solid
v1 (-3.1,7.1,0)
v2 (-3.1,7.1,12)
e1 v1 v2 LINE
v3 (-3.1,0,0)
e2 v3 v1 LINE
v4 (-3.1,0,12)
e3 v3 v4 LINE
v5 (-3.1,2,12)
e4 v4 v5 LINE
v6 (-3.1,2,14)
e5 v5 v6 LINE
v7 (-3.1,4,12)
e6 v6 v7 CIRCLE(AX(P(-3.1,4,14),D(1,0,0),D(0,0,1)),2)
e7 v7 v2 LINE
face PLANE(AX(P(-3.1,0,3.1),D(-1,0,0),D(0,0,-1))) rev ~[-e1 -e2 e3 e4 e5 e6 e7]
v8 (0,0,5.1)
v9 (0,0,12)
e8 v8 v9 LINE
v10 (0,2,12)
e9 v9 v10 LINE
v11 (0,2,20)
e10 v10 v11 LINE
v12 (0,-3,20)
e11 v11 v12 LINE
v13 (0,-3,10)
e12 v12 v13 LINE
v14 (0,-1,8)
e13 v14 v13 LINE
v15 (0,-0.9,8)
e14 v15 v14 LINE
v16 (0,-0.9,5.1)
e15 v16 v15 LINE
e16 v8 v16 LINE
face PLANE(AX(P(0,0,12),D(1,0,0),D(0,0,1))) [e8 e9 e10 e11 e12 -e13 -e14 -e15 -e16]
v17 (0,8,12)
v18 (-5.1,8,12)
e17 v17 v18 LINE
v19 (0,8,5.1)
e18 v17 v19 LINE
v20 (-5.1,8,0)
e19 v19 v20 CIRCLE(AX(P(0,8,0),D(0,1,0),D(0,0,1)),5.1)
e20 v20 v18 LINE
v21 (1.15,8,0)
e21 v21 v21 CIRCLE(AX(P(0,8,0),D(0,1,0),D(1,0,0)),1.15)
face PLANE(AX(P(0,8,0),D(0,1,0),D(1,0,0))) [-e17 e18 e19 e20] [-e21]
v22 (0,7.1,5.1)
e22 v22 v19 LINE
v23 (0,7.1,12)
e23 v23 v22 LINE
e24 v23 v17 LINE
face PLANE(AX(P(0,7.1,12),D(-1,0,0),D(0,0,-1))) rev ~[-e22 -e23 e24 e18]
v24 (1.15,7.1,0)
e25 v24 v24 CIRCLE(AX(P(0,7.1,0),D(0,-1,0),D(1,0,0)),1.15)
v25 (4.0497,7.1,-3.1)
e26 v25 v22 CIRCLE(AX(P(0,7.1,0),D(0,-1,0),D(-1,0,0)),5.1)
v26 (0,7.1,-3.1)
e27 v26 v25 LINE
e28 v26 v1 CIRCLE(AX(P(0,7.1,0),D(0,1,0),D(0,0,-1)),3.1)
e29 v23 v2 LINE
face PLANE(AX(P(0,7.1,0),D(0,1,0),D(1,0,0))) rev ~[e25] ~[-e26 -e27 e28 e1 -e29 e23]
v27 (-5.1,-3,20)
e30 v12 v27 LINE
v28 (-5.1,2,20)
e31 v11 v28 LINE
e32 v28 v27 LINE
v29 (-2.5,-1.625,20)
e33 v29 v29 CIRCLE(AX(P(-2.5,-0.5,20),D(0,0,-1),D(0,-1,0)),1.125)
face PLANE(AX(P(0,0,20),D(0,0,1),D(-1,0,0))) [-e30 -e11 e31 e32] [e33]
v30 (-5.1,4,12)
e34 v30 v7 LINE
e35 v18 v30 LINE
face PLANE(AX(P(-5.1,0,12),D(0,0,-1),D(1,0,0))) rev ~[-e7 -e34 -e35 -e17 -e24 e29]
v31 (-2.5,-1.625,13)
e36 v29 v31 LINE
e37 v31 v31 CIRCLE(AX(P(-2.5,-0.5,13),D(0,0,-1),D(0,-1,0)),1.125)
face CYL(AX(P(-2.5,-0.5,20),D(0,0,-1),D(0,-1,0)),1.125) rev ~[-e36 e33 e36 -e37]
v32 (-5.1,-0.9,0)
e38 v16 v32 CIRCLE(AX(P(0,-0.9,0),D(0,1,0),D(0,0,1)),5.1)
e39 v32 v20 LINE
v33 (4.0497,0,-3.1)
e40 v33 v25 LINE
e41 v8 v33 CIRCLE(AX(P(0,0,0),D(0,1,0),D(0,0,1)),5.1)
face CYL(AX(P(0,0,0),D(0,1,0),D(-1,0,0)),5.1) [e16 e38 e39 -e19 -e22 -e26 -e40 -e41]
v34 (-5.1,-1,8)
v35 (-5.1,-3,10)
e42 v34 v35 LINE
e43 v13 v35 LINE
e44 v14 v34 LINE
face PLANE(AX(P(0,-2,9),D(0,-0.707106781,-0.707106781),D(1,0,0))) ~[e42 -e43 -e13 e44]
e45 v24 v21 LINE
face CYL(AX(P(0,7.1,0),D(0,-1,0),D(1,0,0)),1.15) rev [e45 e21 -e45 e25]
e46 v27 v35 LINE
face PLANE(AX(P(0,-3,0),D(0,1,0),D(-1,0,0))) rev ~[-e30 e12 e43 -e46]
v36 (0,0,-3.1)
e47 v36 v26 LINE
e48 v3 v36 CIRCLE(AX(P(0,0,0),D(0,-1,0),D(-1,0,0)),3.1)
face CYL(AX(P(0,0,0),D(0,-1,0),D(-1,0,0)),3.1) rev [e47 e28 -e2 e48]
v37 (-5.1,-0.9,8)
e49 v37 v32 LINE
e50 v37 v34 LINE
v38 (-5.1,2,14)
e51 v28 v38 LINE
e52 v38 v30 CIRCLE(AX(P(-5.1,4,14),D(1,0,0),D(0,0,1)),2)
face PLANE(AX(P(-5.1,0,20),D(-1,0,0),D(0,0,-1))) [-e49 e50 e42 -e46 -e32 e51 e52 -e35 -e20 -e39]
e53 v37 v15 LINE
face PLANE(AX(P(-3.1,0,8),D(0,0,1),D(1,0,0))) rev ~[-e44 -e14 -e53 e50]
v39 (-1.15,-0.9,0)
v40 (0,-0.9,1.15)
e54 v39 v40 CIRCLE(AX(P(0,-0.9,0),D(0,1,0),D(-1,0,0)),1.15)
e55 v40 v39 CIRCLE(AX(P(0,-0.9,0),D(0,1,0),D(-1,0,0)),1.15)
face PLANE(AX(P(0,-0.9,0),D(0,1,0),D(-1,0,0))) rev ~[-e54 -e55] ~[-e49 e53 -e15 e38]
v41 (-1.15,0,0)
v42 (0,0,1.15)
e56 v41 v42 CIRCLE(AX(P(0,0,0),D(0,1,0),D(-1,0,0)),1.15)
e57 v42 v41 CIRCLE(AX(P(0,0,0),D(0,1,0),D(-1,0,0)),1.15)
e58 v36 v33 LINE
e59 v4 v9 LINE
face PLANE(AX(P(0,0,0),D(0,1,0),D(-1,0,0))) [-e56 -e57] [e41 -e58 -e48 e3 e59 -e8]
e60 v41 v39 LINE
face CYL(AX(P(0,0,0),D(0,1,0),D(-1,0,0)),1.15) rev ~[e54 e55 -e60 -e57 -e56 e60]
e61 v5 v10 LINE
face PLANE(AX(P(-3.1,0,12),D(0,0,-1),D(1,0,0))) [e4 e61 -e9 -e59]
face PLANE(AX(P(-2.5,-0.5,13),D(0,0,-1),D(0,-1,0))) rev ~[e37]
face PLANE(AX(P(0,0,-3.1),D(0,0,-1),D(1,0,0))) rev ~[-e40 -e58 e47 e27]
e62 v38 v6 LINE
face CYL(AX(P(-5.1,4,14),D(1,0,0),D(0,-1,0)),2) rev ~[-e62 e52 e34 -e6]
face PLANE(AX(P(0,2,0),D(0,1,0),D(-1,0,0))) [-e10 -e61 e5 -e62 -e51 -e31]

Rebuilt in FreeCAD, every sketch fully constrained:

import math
import FreeCAD as App
import Part
import Sketcher
from FreeCAD import Vector


def edges_at(feature, points):
    """Names of the edges that pass closest to the given points."""
    edges = feature.Shape.Edges
    near = lambda p: min(range(len(edges)), key=lambda i: edges[i].distToShape(Part.Vertex(*p))[0])
    return sorted({f"Edge{near(p) + 1}" for p in points})


def add_polygon(sketch, points):
    """Adds a closed chain of lines whose ends are joined by coincident constraints."""
    first, n = sketch.GeometryCount, len(points)
    for a, b in zip(points, points[1:] + points[:1]):
        sketch.addGeometry(Part.LineSegment(App.Vector(*a, 0), App.Vector(*b, 0)), False)
    for i in range(n):
        sketch.addConstraint(Sketcher.Constraint("Coincident", first + i, 2, first + (i + 1) % n, 1))

doc = App.newDocument("Part")
body = doc.addObject("PartDesign::Body", "Body")

sketch1 = body.newObject("Sketcher::SketchObject", "Sketch")
sketch1.AttachmentSupport = (doc.getObject("XZ_Plane"), [""])
sketch1.MapMode = "FlatFace"
sketch1.addGeometry(Part.ArcOfCircle(Part.Circle(Vector(0, 0, 0), Vector(0, 0, 1), 3.1), math.radians(180), math.radians(270)), False)
sketch1.addGeometry(Part.LineSegment(Vector(0, -3.1, 0), Vector(4.0497, -3.1, 0)), False)
sketch1.addGeometry(Part.ArcOfCircle(Part.Circle(Vector(0, 0, 0), Vector(0, 0, 1), 5.1), math.radians(180), math.radians(322.566348)), False)
sketch1.addGeometry(Part.LineSegment(Vector(-5.1, 0, 0), Vector(-5.1, 12, 0)), False)
sketch1.addGeometry(Part.LineSegment(Vector(-5.1, 12, 0), Vector(-3.1, 12, 0)), False)
sketch1.addGeometry(Part.LineSegment(Vector(-3.1, 12, 0), Vector(-3.1, 0, 0)), False)
sketch1.addConstraint(Sketcher.Constraint("Tangent", 0, 2, 1, 1))
sketch1.addConstraint(Sketcher.Constraint("Coincident", 1, 2, 2, 2))
sketch1.addConstraint(Sketcher.Constraint("Tangent", 2, 1, 3, 1))
sketch1.addConstraint(Sketcher.Constraint("Coincident", 3, 2, 4, 1))
sketch1.addConstraint(Sketcher.Constraint("Coincident", 4, 2, 5, 1))
sketch1.addConstraint(Sketcher.Constraint("Tangent", 5, 2, 0, 1))
sketch1.addConstraint(Sketcher.Constraint("Horizontal", 1))
sketch1.addConstraint(Sketcher.Constraint("Vertical", 3))
sketch1.addConstraint(Sketcher.Constraint("Horizontal", 4))
sketch1.addConstraint(Sketcher.Constraint("Vertical", 5))
sketch1.addConstraint(Sketcher.Constraint("Coincident", 0, 3, -1, 1))
sketch1.addConstraint(Sketcher.Constraint("Coincident", 2, 3, -1, 1))
sketch1.addConstraint(Sketcher.Constraint("Radius", 0, 3.1))
sketch1.addConstraint(Sketcher.Constraint("Radius", 2, 5.1))
sketch1.addConstraint(Sketcher.Constraint("DistanceY", 3, 1, 3, 2, 12.0))
pad1 = body.newObject("PartDesign::Pad", "Pad")
pad1.Profile = sketch1
pad1.Length = 7.1
pad1.Reversed = True

sketch2 = body.newObject("Sketcher::SketchObject", "Sketch001")
sketch2.AttachmentSupport = (doc.getObject("XZ_Plane"), [""])
sketch2.MapMode = "FlatFace"
sketch2.addGeometry(Part.LineSegment(Vector(-5.1, 0, 0), Vector(-5.1, 20, 0)), False)
sketch2.addGeometry(Part.LineSegment(Vector(-5.1, 20, 0), Vector(0, 20, 0)), False)
sketch2.addGeometry(Part.LineSegment(Vector(0, 20, 0), Vector(0, 5.1, 0)), False)
sketch2.addGeometry(Part.ArcOfCircle(Part.Circle(Vector(0, 0, 0), Vector(0, 0, 1), 5.1), math.radians(180), math.radians(450)), False)
sketch2.addGeometry(Part.Circle(Vector(0, 0, 0), Vector(0, 0, 1), 1.15), False)
sketch2.addConstraint(Sketcher.Constraint("Coincident", 0, 2, 1, 1))
sketch2.addConstraint(Sketcher.Constraint("Coincident", 1, 2, 2, 1))
sketch2.addConstraint(Sketcher.Constraint("Coincident", 2, 2, 3, 2))
sketch2.addConstraint(Sketcher.Constraint("Tangent", 3, 1, 0, 1))
sketch2.addConstraint(Sketcher.Constraint("Vertical", 0))
sketch2.addConstraint(Sketcher.Constraint("Horizontal", 1))
sketch2.addConstraint(Sketcher.Constraint("Vertical", 2))
sketch2.addConstraint(Sketcher.Constraint("Coincident", 3, 3, -1, 1))
sketch2.addConstraint(Sketcher.Constraint("Coincident", 4, 3, -1, 1))
sketch2.addConstraint(Sketcher.Constraint("PointOnObject", 1, 2, -2))
sketch2.addConstraint(Sketcher.Constraint("Diameter", 4, 2.3))
sketch2.addConstraint(Sketcher.Constraint("Radius", 3, 5.1))
sketch2.addConstraint(Sketcher.Constraint("DistanceY", 0, 1, 0, 2, 20.0))
pad2 = body.newObject("PartDesign::Pad", "Pad001")
pad2.Profile = sketch2
pad2.Length = 0.9

sketch3 = body.newObject("Sketcher::SketchObject", "Sketch002")
sketch3.AttachmentSupport = (doc.getObject("XZ_Plane"), [""])
sketch3.MapMode = "FlatFace"
sketch3.AttachmentOffset = App.Placement(Vector(0, 0, -7.1), App.Rotation())
sketch3.addGeometry(Part.LineSegment(Vector(-5.1, 0, 0), Vector(-5.1, 12, 0)), False)
sketch3.addGeometry(Part.LineSegment(Vector(-5.1, 12, 0), Vector(0, 12, 0)), False)
sketch3.addGeometry(Part.LineSegment(Vector(0, 12, 0), Vector(0, 5.1, 0)), False)
sketch3.addGeometry(Part.ArcOfCircle(Part.Circle(Vector(0, 0, 0), Vector(0, 0, 1), 5.1), math.radians(180), math.radians(450)), False)
sketch3.addGeometry(Part.Circle(Vector(0, 0, 0), Vector(0, 0, 1), 1.15), False)
sketch3.addConstraint(Sketcher.Constraint("Coincident", 0, 2, 1, 1))
sketch3.addConstraint(Sketcher.Constraint("Coincident", 1, 2, 2, 1))
sketch3.addConstraint(Sketcher.Constraint("Coincident", 2, 2, 3, 2))
sketch3.addConstraint(Sketcher.Constraint("Tangent", 3, 1, 0, 1))
sketch3.addConstraint(Sketcher.Constraint("Vertical", 0))
sketch3.addConstraint(Sketcher.Constraint("Horizontal", 1))
sketch3.addConstraint(Sketcher.Constraint("Vertical", 2))
sketch3.addConstraint(Sketcher.Constraint("Coincident", 3, 3, -1, 1))
sketch3.addConstraint(Sketcher.Constraint("Coincident", 4, 3, -1, 1))
sketch3.addConstraint(Sketcher.Constraint("PointOnObject", 1, 2, -2))
sketch3.addConstraint(Sketcher.Constraint("Diameter", 4, 2.3))
sketch3.addConstraint(Sketcher.Constraint("Radius", 3, 5.1))
sketch3.addConstraint(Sketcher.Constraint("DistanceY", 0, 1, 0, 2, 12.0))
pad3 = body.newObject("PartDesign::Pad", "Pad002")
pad3.Profile = sketch3
pad3.Length = 0.9
pad3.Reversed = True

sketch4 = body.newObject("Sketcher::SketchObject", "Sketch003")
sketch4.AttachmentSupport = (doc.getObject("XZ_Plane"), [""])
sketch4.MapMode = "FlatFace"
add_polygon(sketch4, [(0, 20), (0, 12), (-5.1, 12), (-5.1, 20)])
sketch4.addConstraint(Sketcher.Constraint("Vertical", 0))
sketch4.addConstraint(Sketcher.Constraint("Horizontal", 1))
sketch4.addConstraint(Sketcher.Constraint("Vertical", 2))
sketch4.addConstraint(Sketcher.Constraint("Horizontal", 3))
sketch4.addConstraint(Sketcher.Constraint("PointOnObject", 0, 2, -2))
sketch4.addConstraint(Sketcher.Constraint("DistanceY", 0, 2, 0, 1, 8.0))
sketch4.addConstraint(Sketcher.Constraint("DistanceX", 1, 2, 1, 1, 5.1))
sketch4.addConstraint(Sketcher.Constraint("DistanceY", -1, 1, 0, 2, 12.0))
pad4 = body.newObject("PartDesign::Pad", "Pad003")
pad4.Profile = sketch4
pad4.Length = 2
pad4.Reversed = True

sketch5 = body.newObject("Sketcher::SketchObject", "Sketch004")
sketch5.AttachmentSupport = (doc.getObject("XZ_Plane"), [""])
sketch5.MapMode = "FlatFace"
add_polygon(sketch5, [(0, 8), (-5.1, 8), (-5.1, 20), (0, 20)])
sketch5.addConstraint(Sketcher.Constraint("Horizontal", 0))
sketch5.addConstraint(Sketcher.Constraint("Vertical", 1))
sketch5.addConstraint(Sketcher.Constraint("Horizontal", 2))
sketch5.addConstraint(Sketcher.Constraint("Vertical", 3))
sketch5.addConstraint(Sketcher.Constraint("PointOnObject", 2, 2, -2))
sketch5.addConstraint(Sketcher.Constraint("DistanceY", 1, 1, 1, 2, 12.0))
sketch5.addConstraint(Sketcher.Constraint("DistanceX", 0, 2, 0, 1, 5.1))
sketch5.addConstraint(Sketcher.Constraint("DistanceY", -1, 1, 0, 2, 8.0))
pad5 = body.newObject("PartDesign::Pad", "Pad004")
pad5.Profile = sketch5
pad5.Length = 3
doc.recompute()

chamfer = body.newObject("PartDesign::Chamfer", "Chamfer")
chamfer.Base = (pad5, edges_at(pad5, [(-2.55, -3, 8)]))
chamfer.Size = 2

sketch6 = body.newObject("Sketcher::SketchObject", "Sketch005")
sketch6.AttachmentSupport = (doc.getObject("XY_Plane"), [""])
sketch6.MapMode = "FlatFace"
sketch6.AttachmentOffset = App.Placement(Vector(0, 0, 20), App.Rotation())
sketch6.addGeometry(Part.Circle(Vector(-2.5, -0.5, 0), Vector(0, 0, 1), 1.125), False)
sketch6.addConstraint(Sketcher.Constraint("Diameter", 0, 2.25))
sketch6.addConstraint(Sketcher.Constraint("DistanceX", 0, 3, -1, 1, 2.5))
sketch6.addConstraint(Sketcher.Constraint("DistanceY", 0, 3, -1, 1, 0.5))
doc.recompute()
hole = body.newObject("PartDesign::Hole", "Hole")
hole.Profile = sketch6
hole.ThreadType = "None"
hole.Diameter = 2.25
hole.DepthType = "Dimension"
hole.Depth = 7
hole.DrillPoint = "Flat"
doc.recompute()

fillet = body.newObject("PartDesign::Fillet", "Fillet")
fillet.Base = (hole, edges_at(hole, [(-4.1, 2, 12)]))
fillet.Radius = 2

doc.recompute()
